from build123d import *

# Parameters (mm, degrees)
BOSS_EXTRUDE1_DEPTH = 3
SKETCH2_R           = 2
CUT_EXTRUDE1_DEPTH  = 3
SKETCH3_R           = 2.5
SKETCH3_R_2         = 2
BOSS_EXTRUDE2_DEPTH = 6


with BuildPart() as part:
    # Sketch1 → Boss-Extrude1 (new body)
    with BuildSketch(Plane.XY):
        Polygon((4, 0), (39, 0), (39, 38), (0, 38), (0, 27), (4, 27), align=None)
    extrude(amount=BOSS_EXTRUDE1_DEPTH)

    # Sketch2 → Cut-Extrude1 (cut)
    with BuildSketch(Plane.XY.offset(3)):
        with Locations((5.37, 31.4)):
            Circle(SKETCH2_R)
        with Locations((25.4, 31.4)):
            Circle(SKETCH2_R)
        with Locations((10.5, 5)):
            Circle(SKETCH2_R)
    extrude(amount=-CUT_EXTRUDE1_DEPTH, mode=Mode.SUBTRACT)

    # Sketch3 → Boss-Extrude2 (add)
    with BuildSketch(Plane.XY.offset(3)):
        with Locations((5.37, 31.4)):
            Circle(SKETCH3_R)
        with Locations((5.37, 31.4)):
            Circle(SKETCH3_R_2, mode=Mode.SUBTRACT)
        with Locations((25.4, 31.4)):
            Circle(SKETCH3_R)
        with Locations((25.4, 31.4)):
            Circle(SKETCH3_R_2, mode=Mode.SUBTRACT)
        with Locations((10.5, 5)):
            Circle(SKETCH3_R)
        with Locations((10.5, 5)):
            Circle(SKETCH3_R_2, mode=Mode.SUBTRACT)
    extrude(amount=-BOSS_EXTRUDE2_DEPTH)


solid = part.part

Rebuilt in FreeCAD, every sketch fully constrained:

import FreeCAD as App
import Part
import Sketcher


def add_polygon(sketch, points):
    """Adds a closed chain of lines whose ends are joined by coincident constraints."""
    first, n = sketch.GeometryCount, len(points)
    for a, b in zip(points, points[1:] + points[:1]):
        sketch.addGeometry(Part.LineSegment(App.Vector(*a, 0), App.Vector(*b, 0)), False)
    for i in range(n):
        sketch.addConstraint(Sketcher.Constraint("Coincident", first + i, 2, first + (i + 1) % n, 1))

doc = App.newDocument("Part")
body = doc.addObject("PartDesign::Body", "Body")

sketch1 = body.newObject("Sketcher::SketchObject", "Sketch")
sketch1.AttachmentSupport = (doc.getObject("XY_Plane"), [""])
sketch1.MapMode = "FlatFace"
add_polygon(sketch1, [(4, 0), (39, 0), (39, 38), (0, 38), (0, 27), (4, 27)])
sketch1.addConstraint(Sketcher.Constraint("Horizontal", 0))
sketch1.addConstraint(Sketcher.Constraint("Vertical", 1))
sketch1.addConstraint(Sketcher.Constraint("Horizontal", 2))
sketch1.addConstraint(Sketcher.Constraint("Vertical", 3))
sketch1.addConstraint(Sketcher.Constraint("Horizontal", 4))
sketch1.addConstraint(Sketcher.Constraint("Vertical", 5))
sketch1.addConstraint(Sketcher.Constraint("PointOnObject", 0, 2, -1))
sketch1.addConstraint(Sketcher.Constraint("PointOnObject", 2, 2, -2))
sketch1.addConstraint(Sketcher.Constraint("DistanceX", 0, 1, 0, 2, 35.0))
sketch1.addConstraint(Sketcher.Constraint("DistanceX", 2, 2, 2, 1, 39.0))
sketch1.addConstraint(Sketcher.Constraint("DistanceY", 1, 1, 1, 2, 38.0))
sketch1.addConstraint(Sketcher.Constraint("DistanceY", 3, 2, 3, 1, 11.0))
pad1 = body.newObject("PartDesign::Pad", "Pad")
pad1.Profile = sketch1
pad1.Length = 3

sketch2 = body.newObject("Sketcher::SketchObject", "Sketch001")
sketch2.AttachmentSupport = (doc.getObject("XY_Plane"), [""])
sketch2.MapMode = "FlatFace"
sketch2.AttachmentOffset = App.Placement(App.Vector(0, 0, 3), App.Rotation())
sketch2.addGeometry(Part.Circle(App.Vector(5.4, 31.4, 0), App.Vector(0, 0, 1), 2), False)
sketch2.addGeometry(Part.Circle(App.Vector(25.4, 31.4, 0), App.Vector(0, 0, 1), 2), False)
sketch2.addGeometry(Part.Circle(App.Vector(10.5, 5, 0), App.Vector(0, 0, 1), 2), False)
sketch2.addConstraint(Sketcher.Constraint("Equal", 0, 1))
sketch2.addConstraint(Sketcher.Constraint("Equal", 1, 2))
sketch2.addConstraint(Sketcher.Constraint("Horizontal", 0, 3, 1, 3))
sketch2.addConstraint(Sketcher.Constraint("Diameter", 0, 4.0))
sketch2.addConstraint(Sketcher.Constraint("DistanceY", -1, 1, 2, 3, 5.0))
sketch2.addConstraint(Sketcher.Constraint("DistanceY", -1, 1, 0, 3, 31.4))
sketch2.addConstraint(Sketcher.Constraint("DistanceX", -1, 1, 1, 3, 25.4))
sketch2.addConstraint(Sketcher.Constraint("DistanceX", -1, 1, 2, 3, 10.5))
sketch2.addConstraint(Sketcher.Constraint("DistanceX", -1, 1, 0, 3, 5.37))
pocket1 = body.newObject("PartDesign::Pocket", "Pocket")
pocket1.Profile = sketch2
pocket1.Length = 3

sketch3 = body.newObject("Sketcher::SketchObject", "Sketch002")
sketch3.AttachmentSupport = (doc.getObject("XY_Plane"), [""])
sketch3.MapMode = "FlatFace"
sketch3.AttachmentOffset = App.Placement(App.Vector(0, 0, 3), App.Rotation())
sketch3.addGeometry(Part.Circle(App.Vector(5.4, 31.4, 0), App.Vector(0, 0, 1), 2.5), False)
sketch3.addGeometry(Part.Circle(App.Vector(5.4, 31.4, 0), App.Vector(0, 0, 1), 2), False)
sketch3.addGeometry(Part.Circle(App.Vector(25.4, 31.4, 0), App.Vector(0, 0, 1), 2.5), False)
sketch3.addGeometry(Part.Circle(App.Vector(25.4, 31.4, 0), App.Vector(0, 0, 1), 2), False)
sketch3.addGeometry(Part.Circle(App.Vector(10.5, 5, 0), App.Vector(0, 0, 1), 2.5), False)
sketch3.addGeometry(Part.Circle(App.Vector(10.5, 5, 0), App.Vector(0, 0, 1), 2), False)
sketch3.addConstraint(Sketcher.Constraint("Coincident", 1, 3, 0, 3))
sketch3.addConstraint(Sketcher.Constraint("Coincident", 3, 3, 2, 3))
sketch3.addConstraint(Sketcher.Constraint("Coincident", 5, 3, 4, 3))
sketch3.addConstraint(Sketcher.Constraint("Equal", 0, 2))
sketch3.addConstraint(Sketcher.Constraint("Equal", 1, 3))
sketch3.addConstraint(Sketcher.Constraint("Equal", 2, 4))
sketch3.addConstraint(Sketcher.Constraint("Equal", 3, 5))
sketch3.addConstraint(Sketcher.Constraint("Horizontal", 1, 3, 2, 3))
sketch3.addConstraint(Sketcher.Constraint("Diameter", 0, 5.0))
sketch3.addConstraint(Sketcher.Constraint("Diameter", 1, 4.0))
sketch3.addConstraint(Sketcher.Constraint("DistanceY", -1, 1, 4, 3, 5.0))
sketch3.addConstraint(Sketcher.Constraint("DistanceY", -1, 1, 0, 3, 31.4))
sketch3.addConstraint(Sketcher.Constraint("DistanceX", -1, 1, 2, 3, 25.4))
sketch3.addConstraint(Sketcher.Constraint("DistanceX", -1, 1, 4, 3, 10.5))
sketch3.addConstraint(Sketcher.Constraint("DistanceX", -1, 1, 0, 3, 5.37))
pad2 = body.newObject("PartDesign::Pad", "Pad001")
pad2.Profile = sketch3
pad2.Length = 6
pad2.Reversed = True

doc.recompute()
